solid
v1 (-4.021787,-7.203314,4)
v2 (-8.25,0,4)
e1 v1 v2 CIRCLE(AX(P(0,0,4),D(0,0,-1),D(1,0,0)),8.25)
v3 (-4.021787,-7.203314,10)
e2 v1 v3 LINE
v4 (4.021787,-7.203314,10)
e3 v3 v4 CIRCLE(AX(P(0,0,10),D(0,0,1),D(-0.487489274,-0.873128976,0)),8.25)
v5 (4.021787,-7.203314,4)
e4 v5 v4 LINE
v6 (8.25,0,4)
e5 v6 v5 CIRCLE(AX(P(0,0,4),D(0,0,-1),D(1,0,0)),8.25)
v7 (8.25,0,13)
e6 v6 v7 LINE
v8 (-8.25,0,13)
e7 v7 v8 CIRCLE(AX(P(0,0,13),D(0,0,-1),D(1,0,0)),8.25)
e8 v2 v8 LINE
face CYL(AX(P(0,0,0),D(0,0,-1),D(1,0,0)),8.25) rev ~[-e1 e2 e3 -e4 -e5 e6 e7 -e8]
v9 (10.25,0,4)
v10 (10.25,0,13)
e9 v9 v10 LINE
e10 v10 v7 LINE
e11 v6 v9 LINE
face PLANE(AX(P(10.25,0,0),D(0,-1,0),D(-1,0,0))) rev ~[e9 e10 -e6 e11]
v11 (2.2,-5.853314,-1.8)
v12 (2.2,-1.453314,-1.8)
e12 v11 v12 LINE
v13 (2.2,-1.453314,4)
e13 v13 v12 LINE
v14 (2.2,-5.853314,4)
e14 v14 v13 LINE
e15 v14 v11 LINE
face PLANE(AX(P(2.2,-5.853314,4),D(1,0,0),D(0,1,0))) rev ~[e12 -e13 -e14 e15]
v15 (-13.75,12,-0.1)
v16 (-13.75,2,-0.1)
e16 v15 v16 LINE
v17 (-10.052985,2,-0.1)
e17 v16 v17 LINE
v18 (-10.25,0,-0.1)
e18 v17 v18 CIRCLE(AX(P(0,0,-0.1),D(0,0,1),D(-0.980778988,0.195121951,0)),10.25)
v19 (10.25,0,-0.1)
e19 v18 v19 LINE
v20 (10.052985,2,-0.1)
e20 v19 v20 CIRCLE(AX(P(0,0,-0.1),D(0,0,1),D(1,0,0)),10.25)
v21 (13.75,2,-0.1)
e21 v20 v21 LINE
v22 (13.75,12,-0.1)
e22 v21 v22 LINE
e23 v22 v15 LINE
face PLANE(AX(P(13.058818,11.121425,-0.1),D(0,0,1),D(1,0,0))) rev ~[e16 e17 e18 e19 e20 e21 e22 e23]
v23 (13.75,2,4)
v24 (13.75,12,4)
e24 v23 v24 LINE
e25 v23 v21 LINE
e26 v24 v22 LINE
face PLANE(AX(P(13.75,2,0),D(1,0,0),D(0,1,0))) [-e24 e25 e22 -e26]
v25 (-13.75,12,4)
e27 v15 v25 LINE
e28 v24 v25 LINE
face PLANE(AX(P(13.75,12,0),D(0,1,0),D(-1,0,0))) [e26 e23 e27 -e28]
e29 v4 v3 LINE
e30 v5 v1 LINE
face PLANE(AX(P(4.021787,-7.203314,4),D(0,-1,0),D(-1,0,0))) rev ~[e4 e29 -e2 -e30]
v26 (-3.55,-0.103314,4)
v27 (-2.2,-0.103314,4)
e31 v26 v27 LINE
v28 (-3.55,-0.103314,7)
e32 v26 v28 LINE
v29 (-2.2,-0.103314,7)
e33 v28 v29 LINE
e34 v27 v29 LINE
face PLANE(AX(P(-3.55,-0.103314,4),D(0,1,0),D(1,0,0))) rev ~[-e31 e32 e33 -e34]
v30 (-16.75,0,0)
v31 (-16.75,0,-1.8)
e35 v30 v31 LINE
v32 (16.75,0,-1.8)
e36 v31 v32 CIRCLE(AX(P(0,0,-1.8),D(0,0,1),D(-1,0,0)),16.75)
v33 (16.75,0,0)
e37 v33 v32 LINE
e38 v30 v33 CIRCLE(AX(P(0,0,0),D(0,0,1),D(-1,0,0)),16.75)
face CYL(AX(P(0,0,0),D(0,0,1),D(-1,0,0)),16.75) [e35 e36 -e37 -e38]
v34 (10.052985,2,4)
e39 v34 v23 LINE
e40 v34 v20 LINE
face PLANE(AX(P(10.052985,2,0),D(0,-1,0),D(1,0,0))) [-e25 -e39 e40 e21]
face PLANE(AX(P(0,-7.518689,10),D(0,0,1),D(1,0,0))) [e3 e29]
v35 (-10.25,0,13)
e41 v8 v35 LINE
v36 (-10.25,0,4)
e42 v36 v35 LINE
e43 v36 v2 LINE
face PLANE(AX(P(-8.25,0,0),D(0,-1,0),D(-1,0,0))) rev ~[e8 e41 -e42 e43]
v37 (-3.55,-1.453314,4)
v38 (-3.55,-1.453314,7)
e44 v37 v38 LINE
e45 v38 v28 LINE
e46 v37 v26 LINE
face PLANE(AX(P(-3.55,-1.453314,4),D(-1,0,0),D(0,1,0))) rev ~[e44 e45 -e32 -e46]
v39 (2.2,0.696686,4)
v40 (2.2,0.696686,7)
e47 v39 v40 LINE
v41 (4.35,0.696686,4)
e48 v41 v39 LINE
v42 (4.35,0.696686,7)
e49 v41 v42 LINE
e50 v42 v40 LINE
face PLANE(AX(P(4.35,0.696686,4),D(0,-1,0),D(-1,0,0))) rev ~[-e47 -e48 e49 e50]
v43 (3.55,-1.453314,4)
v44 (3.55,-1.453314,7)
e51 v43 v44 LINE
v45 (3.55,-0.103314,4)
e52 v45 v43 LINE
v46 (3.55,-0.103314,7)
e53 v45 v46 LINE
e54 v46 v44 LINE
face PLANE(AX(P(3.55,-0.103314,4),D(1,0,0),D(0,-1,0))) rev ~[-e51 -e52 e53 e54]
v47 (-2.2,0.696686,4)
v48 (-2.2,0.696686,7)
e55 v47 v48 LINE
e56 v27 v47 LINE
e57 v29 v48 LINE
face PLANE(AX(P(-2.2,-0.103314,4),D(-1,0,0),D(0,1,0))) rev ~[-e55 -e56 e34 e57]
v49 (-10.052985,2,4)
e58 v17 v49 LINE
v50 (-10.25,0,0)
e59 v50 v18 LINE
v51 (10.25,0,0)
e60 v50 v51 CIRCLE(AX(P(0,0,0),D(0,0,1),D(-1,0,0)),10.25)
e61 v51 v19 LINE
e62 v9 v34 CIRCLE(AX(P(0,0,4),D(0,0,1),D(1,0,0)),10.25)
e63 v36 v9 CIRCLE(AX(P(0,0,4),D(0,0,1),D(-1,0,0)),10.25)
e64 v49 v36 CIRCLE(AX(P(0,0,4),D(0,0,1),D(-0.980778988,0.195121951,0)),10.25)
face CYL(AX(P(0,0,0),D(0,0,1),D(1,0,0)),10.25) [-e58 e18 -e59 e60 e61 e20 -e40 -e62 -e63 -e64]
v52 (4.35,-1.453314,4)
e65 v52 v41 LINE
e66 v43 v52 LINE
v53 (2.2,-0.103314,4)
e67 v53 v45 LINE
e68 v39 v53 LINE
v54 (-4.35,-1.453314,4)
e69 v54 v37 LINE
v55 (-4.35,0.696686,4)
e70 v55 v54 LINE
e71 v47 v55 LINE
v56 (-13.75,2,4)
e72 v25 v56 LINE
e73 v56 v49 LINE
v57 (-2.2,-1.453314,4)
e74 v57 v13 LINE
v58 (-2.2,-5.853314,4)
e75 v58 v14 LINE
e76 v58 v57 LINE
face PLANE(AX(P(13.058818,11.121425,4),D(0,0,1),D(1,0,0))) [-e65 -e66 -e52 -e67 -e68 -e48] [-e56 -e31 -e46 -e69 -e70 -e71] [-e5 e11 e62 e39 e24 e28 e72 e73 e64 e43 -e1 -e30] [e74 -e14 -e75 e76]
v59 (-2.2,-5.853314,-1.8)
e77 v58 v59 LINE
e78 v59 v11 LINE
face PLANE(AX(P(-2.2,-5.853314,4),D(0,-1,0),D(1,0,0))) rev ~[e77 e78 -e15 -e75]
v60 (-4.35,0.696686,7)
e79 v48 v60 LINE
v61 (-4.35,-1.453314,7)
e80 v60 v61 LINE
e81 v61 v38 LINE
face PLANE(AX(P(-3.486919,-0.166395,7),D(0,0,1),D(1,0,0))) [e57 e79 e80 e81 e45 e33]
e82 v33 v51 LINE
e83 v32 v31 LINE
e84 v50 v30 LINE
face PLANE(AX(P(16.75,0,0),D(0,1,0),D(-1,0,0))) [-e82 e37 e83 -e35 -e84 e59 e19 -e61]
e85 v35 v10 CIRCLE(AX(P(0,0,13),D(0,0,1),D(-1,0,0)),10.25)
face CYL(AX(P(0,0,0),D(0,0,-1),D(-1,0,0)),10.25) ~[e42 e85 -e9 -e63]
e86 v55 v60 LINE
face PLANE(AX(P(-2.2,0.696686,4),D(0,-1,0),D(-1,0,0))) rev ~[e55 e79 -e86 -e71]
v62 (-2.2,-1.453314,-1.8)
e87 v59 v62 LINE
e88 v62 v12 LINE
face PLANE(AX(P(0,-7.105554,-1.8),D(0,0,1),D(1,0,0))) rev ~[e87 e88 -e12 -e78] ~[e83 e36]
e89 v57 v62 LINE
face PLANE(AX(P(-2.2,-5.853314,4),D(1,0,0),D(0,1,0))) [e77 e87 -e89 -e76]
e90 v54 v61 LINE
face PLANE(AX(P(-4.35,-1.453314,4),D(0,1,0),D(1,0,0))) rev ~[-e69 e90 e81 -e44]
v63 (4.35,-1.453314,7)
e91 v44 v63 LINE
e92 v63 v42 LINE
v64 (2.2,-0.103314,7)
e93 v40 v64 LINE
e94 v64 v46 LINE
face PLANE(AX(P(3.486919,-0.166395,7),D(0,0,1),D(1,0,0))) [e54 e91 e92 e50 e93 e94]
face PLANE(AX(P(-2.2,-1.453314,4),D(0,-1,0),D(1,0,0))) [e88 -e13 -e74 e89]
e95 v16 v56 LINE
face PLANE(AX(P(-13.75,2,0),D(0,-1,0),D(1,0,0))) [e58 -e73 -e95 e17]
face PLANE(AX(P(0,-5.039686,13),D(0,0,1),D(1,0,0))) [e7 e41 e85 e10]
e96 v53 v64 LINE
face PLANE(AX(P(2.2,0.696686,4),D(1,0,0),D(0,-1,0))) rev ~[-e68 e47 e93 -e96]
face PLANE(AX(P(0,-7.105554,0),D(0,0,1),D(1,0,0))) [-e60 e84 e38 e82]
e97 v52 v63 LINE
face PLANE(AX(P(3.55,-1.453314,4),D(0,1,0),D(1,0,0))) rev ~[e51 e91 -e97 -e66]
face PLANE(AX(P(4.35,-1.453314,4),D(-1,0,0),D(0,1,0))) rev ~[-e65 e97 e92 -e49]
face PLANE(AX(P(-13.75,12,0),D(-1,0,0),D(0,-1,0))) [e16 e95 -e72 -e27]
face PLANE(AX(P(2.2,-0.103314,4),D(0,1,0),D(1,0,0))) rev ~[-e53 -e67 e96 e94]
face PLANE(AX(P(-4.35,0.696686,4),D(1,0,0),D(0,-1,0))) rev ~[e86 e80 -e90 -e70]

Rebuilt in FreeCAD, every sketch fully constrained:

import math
import FreeCAD as App
import Part
import Sketcher

V = App.Vector
Q = App.Units.Quantity

doc = App.newDocument("Part")
body = doc.addObject("PartDesign::Body", "Body")

# Sketch on XY plane
sketch1 = body.newObject("Sketcher::SketchObject", "Sketch")
sketch1.AttachmentSupport = (doc.getObject("XY_Plane"), [""])
sketch1.MapMode = "FlatFace"
sketch1.addGeometry([
    Part.ArcOfCircle(Part.Circle(V(0, 0, 0), V(0, 0, 1), 16.75), math.radians(180), math.radians(360)),
    Part.LineSegment(V(16.75, 0, 0), V(-16.75, 0, 0)),
], False)
sketch1.addConstraint([
    Sketcher.Constraint("Coincident", 0, 1, 1, 2),
    Sketcher.Constraint("Coincident", 1, 1, 0, 2),
    Sketcher.Constraint("Horizontal", 1),
    Sketcher.Constraint("Coincident", 0, 3, -1, 1),
    Sketcher.Constraint("PointOnObject", 0, 1, -1),
    Sketcher.Constraint("Radius", 0, Q("16.75 mm")),
])
pad1 = body.newObject("PartDesign::Pad", "Pad")
pad1.Profile = sketch1
pad1.Length = 1.8
pad1.Reversed = True

# Sketch on XY plane
sketch2 = body.newObject("Sketcher::SketchObject", "Sketch001")
sketch2.AttachmentSupport = (doc.getObject("XY_Plane"), [""])
sketch2.MapMode = "FlatFace"
sketch2.addGeometry([
    Part.LineSegment(V(13.75, 12, 0), V(-13.75, 12, 0)),  # 0
    Part.LineSegment(V(-13.75, 12, 0), V(-13.75, 2, 0)),  # 1
    Part.LineSegment(V(-13.75, 2, 0), V(-10.052985, 2, 0)),  # 2
    Part.ArcOfCircle(Part.Circle(V(0, 0, 0), V(0, 0, 1), 10.25), math.radians(168.748152), math.radians(180)),  # 3
    Part.ArcOfCircle(Part.Circle(V(0, 0, 0), V(0, 0, 1), 10.25), math.radians(180), math.radians(360)),  # 4
    Part.ArcOfCircle(Part.Circle(V(0, 0, 0), V(0, 0, 1), 10.25), math.radians(0), math.radians(11.251848)),  # 5
    Part.LineSegment(V(10.052985, 2, 0), V(13.75, 2, 0)),  # 6
    Part.LineSegment(V(13.75, 2, 0), V(13.75, 12, 0)),  # 7
], False)
sketch2.addConstraint([
    Sketcher.Constraint("Coincident", 0, 2, 1, 1),
    Sketcher.Constraint("Coincident", 1, 2, 2, 1),
    Sketcher.Constraint("Coincident", 2, 2, 3, 1),
    Sketcher.Constraint("Tangent", 3, 2, 4, 1),
    Sketcher.Constraint("Tangent", 4, 2, 5, 1),
    Sketcher.Constraint("Coincident", 5, 2, 6, 1),
    Sketcher.Constraint("Coincident", 6, 2, 7, 1),
    Sketcher.Constraint("Coincident", 7, 2, 0, 1),
    Sketcher.Constraint("Horizontal", 0),
    Sketcher.Constraint("Vertical", 1),
    Sketcher.Constraint("Horizontal", 2),
    Sketcher.Constraint("Horizontal", 6),
    Sketcher.Constraint("Vertical", 7),
    Sketcher.Constraint("Coincident", 3, 3, -1, 1),
    Sketcher.Constraint("Equal", 3, 4),
    Sketcher.Constraint("Equal", 4, 5),
    Sketcher.Constraint("Symmetric", 1, 2, 6, 2, -2),
    Sketcher.Constraint("PointOnObject", 3, 2, -1),
    Sketcher.Constraint("PointOnObject", 4, 2, -1),
    Sketcher.Constraint("DistanceY", 1, 2, 1, 1, Q("10 mm")),
    Sketcher.Constraint("Radius", 3, Q("10.25 mm")),
    Sketcher.Constraint("DistanceX", 0, 2, 0, 1, Q("27.5 mm")),
    Sketcher.Constraint("DistanceY", -1, 1, 0, 2, Q("12 mm")),
])
pad2 = body.newObject("PartDesign::Pad", "Pad001")
pad2.Profile = sketch2
pad2.Type = "TwoLengths"
pad2.Length = 4
pad2.Length2 = 0.1

# Sketch on XY plane
sketch3 = body.newObject("Sketcher::SketchObject", "Sketch002")
sketch3.AttachmentSupport = (doc.getObject("XY_Plane"), [""])
sketch3.MapMode = "FlatFace"
sketch3.addGeometry([
    Part.LineSegment(V(-8.25, 0, 0), V(-10.25, 0, 0)),
    Part.ArcOfCircle(Part.Circle(V(0, 0, 0), V(0, 0, 1), 10.25), math.radians(180), math.radians(360)),
    Part.LineSegment(V(10.25, 0, 0), V(8.25, 0, 0)),
    Part.ArcOfCircle(Part.Circle(V(0, 0, 0), V(0, 0, 1), 8.25), math.radians(180), math.radians(360)),
], False)
sketch3.addConstraint([
    Sketcher.Constraint("Coincident", 0, 2, 1, 1),
    Sketcher.Constraint("Coincident", 1, 2, 2, 1),
    Sketcher.Constraint("Coincident", 2, 2, 3, 2),
    Sketcher.Constraint("Coincident", 3, 1, 0, 1),
    Sketcher.Constraint("Horizontal", 0),
    Sketcher.Constraint("Horizontal", 2),
    Sketcher.Constraint("Coincident", 1, 3, -1, 1),
    Sketcher.Constraint("Coincident", 3, 3, -1, 1),
    Sketcher.Constraint("PointOnObject", 0, 2, -1),
    Sketcher.Constraint("PointOnObject", 1, 2, -1),
    Sketcher.Constraint("DistanceX", 0, 2, 0, 1, Q("2 mm")),
    Sketcher.Constraint("Radius", 1, Q("10.25 mm")),
])
pad3 = body.newObject("PartDesign::Pad", "Pad002")
pad3.Profile = sketch3
pad3.Type = "TwoLengths"
pad3.Length = 13
pad3.Length2 = 1.7

# Sketch on XY plane
sketch4 = body.newObject("Sketcher::SketchObject", "Sketch003")
sketch4.AttachmentSupport = (doc.getObject("XY_Plane"), [""])
sketch4.MapMode = "FlatFace"
sketch4.AttachmentOffset = App.Placement(V(0, 0, 4), App.Rotation())
sketch4.addGeometry([
    Part.LineSegment(V(-2.2, -1.453314, 0), V(-2.2, -5.853314, 0)),
    Part.LineSegment(V(-2.2, -5.853314, 0), V(2.2, -5.853314, 0)),
    Part.LineSegment(V(2.2, -5.853314, 0), V(2.2, -1.453314, 0)),
    Part.LineSegment(V(2.2, -1.453314, 0), V(-2.2, -1.453314, 0)),
], False)
sketch4.addConstraint([
    Sketcher.Constraint("Coincident", 0, 2, 1, 1),
    Sketcher.Constraint("Coincident", 1, 2, 2, 1),
    Sketcher.Constraint("Coincident", 2, 2, 3, 1),
    Sketcher.Constraint("Coincident", 3, 2, 0, 1),
    Sketcher.Constraint("Vertical", 0),
    Sketcher.Constraint("Horizontal", 1),
    Sketcher.Constraint("Vertical", 2),
    Sketcher.Constraint("Horizontal", 3),
    Sketcher.Constraint("Equal", 3, 0),
    Sketcher.Constraint("DistanceX", 1, 1, 1, 2, Q("4.4 mm")),
    Sketcher.Constraint("DistanceX", 0, 2, -1, 1, Q("2.2 mm")),
    Sketcher.Constraint("DistanceY", 0, 2, -1, 1, Q("5.853314 mm")),
])
pocket1 = body.newObject("PartDesign::Pocket", "Pocket")
pocket1.Profile = sketch4
pocket1.Length = 10

# Sketch on XY plane
sketch5 = body.newObject("Sketcher::SketchObject", "Sketch004")
sketch5.AttachmentSupport = (doc.getObject("XY_Plane"), [""])
sketch5.MapMode = "FlatFace"
sketch5.AttachmentOffset = App.Placement(V(0, 0, 4), App.Rotation())
sketch5.addGeometry([
    Part.LineSegment(V(-3.55, -0.103314, 0), V(-2.2, -0.103314, 0)),  # 0
    Part.LineSegment(V(-2.2, -0.103314, 0), V(-2.2, 0.696686, 0)),  # 1
    Part.LineSegment(V(-2.2, 0.696686, 0), V(-4.35, 0.696686, 0)),  # 2
    Part.LineSegment(V(-4.35, 0.696686, 0), V(-4.35, -1.453314, 0)),  # 3
    Part.LineSegment(V(-4.35, -1.453314, 0), V(-3.55, -1.453314, 0)),  # 4
    Part.LineSegment(V(-3.55, -1.453314, 0), V(-3.55, -0.103314, 0)),  # 5
    Part.LineSegment(V(2.2, -0.103314, 0), V(3.55, -0.103314, 0)),  # 6
    Part.LineSegment(V(3.55, -0.103314, 0), V(3.55, -1.453314, 0)),  # 7
    Part.LineSegment(V(3.55, -1.453314, 0), V(4.35, -1.453314, 0)),  # 8
    Part.LineSegment(V(4.35, -1.453314, 0), V(4.35, 0.696686, 0)),  # 9
    Part.LineSegment(V(4.35, 0.696686, 0), V(2.2, 0.696686, 0)),  # 10
    Part.LineSegment(V(2.2, 0.696686, 0), V(2.2, -0.103314, 0)),  # 11
], False)
sketch5.addConstraint([
    Sketcher.Constraint("Coincident", 0, 2, 1, 1),
    Sketcher.Constraint("Coincident", 1, 2, 2, 1),
    Sketcher.Constraint("Coincident", 2, 2, 3, 1),
    Sketcher.Constraint("Coincident", 3, 2, 4, 1),
    Sketcher.Constraint("Coincident", 4, 2, 5, 1),
    Sketcher.Constraint("Coincident", 5, 2, 0, 1),
    Sketcher.Constraint("Coincident", 6, 2, 7, 1),
    Sketcher.Constraint("Coincident", 7, 2, 8, 1),
    Sketcher.Constraint("Coincident", 8, 2, 9, 1),
    Sketcher.Constraint("Coincident", 9, 2, 10, 1),
    Sketcher.Constraint("Coincident", 10, 2, 11, 1),
    Sketcher.Constraint("Coincident", 11, 2, 6, 1),
    Sketcher.Constraint("Horizontal", 0),
    Sketcher.Constraint("Vertical", 1),
    Sketcher.Constraint("Horizontal", 2),
    Sketcher.Constraint("Vertical", 3),
    Sketcher.Constraint("Horizontal", 4),
    Sketcher.Constraint("Vertical", 5),
    Sketcher.Constraint("Horizontal", 6),
    Sketcher.Constraint("Vertical", 7),
    Sketcher.Constraint("Horizontal", 8),
    Sketcher.Constraint("Vertical", 9),
    Sketcher.Constraint("Horizontal", 10),
    Sketcher.Constraint("Vertical", 11),
    Sketcher.Constraint("Symmetric", 5, 2, 6, 2, -2),
    Sketcher.Constraint("Symmetric", 3, 2, 8, 2, -2),
    Sketcher.Constraint("Symmetric", 1, 2, 10, 2, -2),
    Sketcher.Constraint("Equal", 8, 1),
    Sketcher.Constraint("Equal", 10, 3),
    Sketcher.Constraint("DistanceX", 4, 1, 4, 2, Q("0.8 mm")),
    Sketcher.Constraint("DistanceX", 0, 1, 0, 2, Q("1.35 mm")),
    Sketcher.Constraint("DistanceX", 0, 2, -1, 1, Q("2.2 mm")),
    Sketcher.Constraint("DistanceY", 0, 2, -1, 1, Q("0.103314 mm")),
])
pad4 = body.newObject("PartDesign::Pad", "Pad003")
pad4.Profile = sketch5
pad4.Length = 3

# Sketch on XY plane
sketch6 = body.newObject("Sketcher::SketchObject", "Sketch005")
sketch6.AttachmentSupport = (doc.getObject("XY_Plane"), [""])
sketch6.MapMode = "FlatFace"
sketch6.AttachmentOffset = App.Placement(V(0, 0, 4), App.Rotation())
sketch6.addGeometry([
    Part.LineSegment(V(4.021787, -7.203314, 0), V(-4.021787, -7.203314, 0)),
    Part.ArcOfCircle(Part.Circle(V(0, 0, 0), V(0, 0, 1), 8.25), math.radians(-119.175692), math.radians(-60.824308)),
], False)
sketch6.addConstraint([
    Sketcher.Constraint("Coincident", 0, 1, 1, 2),
    Sketcher.Constraint("Coincident", 1, 1, 0, 2),
    Sketcher.Constraint("Horizontal", 0),
    Sketcher.Constraint("Coincident", 1, 3, -1, 1),
    Sketcher.Constraint("Radius", 1, Q("8.25 mm")),
    Sketcher.Constraint("DistanceX", 0, 2, 0, 1, Q("8.043573 mm")),
])
pad5 = body.newObject("PartDesign::Pad", "Pad004")
pad5.Profile = sketch6
pad5.Length = 6

doc.recompute()
